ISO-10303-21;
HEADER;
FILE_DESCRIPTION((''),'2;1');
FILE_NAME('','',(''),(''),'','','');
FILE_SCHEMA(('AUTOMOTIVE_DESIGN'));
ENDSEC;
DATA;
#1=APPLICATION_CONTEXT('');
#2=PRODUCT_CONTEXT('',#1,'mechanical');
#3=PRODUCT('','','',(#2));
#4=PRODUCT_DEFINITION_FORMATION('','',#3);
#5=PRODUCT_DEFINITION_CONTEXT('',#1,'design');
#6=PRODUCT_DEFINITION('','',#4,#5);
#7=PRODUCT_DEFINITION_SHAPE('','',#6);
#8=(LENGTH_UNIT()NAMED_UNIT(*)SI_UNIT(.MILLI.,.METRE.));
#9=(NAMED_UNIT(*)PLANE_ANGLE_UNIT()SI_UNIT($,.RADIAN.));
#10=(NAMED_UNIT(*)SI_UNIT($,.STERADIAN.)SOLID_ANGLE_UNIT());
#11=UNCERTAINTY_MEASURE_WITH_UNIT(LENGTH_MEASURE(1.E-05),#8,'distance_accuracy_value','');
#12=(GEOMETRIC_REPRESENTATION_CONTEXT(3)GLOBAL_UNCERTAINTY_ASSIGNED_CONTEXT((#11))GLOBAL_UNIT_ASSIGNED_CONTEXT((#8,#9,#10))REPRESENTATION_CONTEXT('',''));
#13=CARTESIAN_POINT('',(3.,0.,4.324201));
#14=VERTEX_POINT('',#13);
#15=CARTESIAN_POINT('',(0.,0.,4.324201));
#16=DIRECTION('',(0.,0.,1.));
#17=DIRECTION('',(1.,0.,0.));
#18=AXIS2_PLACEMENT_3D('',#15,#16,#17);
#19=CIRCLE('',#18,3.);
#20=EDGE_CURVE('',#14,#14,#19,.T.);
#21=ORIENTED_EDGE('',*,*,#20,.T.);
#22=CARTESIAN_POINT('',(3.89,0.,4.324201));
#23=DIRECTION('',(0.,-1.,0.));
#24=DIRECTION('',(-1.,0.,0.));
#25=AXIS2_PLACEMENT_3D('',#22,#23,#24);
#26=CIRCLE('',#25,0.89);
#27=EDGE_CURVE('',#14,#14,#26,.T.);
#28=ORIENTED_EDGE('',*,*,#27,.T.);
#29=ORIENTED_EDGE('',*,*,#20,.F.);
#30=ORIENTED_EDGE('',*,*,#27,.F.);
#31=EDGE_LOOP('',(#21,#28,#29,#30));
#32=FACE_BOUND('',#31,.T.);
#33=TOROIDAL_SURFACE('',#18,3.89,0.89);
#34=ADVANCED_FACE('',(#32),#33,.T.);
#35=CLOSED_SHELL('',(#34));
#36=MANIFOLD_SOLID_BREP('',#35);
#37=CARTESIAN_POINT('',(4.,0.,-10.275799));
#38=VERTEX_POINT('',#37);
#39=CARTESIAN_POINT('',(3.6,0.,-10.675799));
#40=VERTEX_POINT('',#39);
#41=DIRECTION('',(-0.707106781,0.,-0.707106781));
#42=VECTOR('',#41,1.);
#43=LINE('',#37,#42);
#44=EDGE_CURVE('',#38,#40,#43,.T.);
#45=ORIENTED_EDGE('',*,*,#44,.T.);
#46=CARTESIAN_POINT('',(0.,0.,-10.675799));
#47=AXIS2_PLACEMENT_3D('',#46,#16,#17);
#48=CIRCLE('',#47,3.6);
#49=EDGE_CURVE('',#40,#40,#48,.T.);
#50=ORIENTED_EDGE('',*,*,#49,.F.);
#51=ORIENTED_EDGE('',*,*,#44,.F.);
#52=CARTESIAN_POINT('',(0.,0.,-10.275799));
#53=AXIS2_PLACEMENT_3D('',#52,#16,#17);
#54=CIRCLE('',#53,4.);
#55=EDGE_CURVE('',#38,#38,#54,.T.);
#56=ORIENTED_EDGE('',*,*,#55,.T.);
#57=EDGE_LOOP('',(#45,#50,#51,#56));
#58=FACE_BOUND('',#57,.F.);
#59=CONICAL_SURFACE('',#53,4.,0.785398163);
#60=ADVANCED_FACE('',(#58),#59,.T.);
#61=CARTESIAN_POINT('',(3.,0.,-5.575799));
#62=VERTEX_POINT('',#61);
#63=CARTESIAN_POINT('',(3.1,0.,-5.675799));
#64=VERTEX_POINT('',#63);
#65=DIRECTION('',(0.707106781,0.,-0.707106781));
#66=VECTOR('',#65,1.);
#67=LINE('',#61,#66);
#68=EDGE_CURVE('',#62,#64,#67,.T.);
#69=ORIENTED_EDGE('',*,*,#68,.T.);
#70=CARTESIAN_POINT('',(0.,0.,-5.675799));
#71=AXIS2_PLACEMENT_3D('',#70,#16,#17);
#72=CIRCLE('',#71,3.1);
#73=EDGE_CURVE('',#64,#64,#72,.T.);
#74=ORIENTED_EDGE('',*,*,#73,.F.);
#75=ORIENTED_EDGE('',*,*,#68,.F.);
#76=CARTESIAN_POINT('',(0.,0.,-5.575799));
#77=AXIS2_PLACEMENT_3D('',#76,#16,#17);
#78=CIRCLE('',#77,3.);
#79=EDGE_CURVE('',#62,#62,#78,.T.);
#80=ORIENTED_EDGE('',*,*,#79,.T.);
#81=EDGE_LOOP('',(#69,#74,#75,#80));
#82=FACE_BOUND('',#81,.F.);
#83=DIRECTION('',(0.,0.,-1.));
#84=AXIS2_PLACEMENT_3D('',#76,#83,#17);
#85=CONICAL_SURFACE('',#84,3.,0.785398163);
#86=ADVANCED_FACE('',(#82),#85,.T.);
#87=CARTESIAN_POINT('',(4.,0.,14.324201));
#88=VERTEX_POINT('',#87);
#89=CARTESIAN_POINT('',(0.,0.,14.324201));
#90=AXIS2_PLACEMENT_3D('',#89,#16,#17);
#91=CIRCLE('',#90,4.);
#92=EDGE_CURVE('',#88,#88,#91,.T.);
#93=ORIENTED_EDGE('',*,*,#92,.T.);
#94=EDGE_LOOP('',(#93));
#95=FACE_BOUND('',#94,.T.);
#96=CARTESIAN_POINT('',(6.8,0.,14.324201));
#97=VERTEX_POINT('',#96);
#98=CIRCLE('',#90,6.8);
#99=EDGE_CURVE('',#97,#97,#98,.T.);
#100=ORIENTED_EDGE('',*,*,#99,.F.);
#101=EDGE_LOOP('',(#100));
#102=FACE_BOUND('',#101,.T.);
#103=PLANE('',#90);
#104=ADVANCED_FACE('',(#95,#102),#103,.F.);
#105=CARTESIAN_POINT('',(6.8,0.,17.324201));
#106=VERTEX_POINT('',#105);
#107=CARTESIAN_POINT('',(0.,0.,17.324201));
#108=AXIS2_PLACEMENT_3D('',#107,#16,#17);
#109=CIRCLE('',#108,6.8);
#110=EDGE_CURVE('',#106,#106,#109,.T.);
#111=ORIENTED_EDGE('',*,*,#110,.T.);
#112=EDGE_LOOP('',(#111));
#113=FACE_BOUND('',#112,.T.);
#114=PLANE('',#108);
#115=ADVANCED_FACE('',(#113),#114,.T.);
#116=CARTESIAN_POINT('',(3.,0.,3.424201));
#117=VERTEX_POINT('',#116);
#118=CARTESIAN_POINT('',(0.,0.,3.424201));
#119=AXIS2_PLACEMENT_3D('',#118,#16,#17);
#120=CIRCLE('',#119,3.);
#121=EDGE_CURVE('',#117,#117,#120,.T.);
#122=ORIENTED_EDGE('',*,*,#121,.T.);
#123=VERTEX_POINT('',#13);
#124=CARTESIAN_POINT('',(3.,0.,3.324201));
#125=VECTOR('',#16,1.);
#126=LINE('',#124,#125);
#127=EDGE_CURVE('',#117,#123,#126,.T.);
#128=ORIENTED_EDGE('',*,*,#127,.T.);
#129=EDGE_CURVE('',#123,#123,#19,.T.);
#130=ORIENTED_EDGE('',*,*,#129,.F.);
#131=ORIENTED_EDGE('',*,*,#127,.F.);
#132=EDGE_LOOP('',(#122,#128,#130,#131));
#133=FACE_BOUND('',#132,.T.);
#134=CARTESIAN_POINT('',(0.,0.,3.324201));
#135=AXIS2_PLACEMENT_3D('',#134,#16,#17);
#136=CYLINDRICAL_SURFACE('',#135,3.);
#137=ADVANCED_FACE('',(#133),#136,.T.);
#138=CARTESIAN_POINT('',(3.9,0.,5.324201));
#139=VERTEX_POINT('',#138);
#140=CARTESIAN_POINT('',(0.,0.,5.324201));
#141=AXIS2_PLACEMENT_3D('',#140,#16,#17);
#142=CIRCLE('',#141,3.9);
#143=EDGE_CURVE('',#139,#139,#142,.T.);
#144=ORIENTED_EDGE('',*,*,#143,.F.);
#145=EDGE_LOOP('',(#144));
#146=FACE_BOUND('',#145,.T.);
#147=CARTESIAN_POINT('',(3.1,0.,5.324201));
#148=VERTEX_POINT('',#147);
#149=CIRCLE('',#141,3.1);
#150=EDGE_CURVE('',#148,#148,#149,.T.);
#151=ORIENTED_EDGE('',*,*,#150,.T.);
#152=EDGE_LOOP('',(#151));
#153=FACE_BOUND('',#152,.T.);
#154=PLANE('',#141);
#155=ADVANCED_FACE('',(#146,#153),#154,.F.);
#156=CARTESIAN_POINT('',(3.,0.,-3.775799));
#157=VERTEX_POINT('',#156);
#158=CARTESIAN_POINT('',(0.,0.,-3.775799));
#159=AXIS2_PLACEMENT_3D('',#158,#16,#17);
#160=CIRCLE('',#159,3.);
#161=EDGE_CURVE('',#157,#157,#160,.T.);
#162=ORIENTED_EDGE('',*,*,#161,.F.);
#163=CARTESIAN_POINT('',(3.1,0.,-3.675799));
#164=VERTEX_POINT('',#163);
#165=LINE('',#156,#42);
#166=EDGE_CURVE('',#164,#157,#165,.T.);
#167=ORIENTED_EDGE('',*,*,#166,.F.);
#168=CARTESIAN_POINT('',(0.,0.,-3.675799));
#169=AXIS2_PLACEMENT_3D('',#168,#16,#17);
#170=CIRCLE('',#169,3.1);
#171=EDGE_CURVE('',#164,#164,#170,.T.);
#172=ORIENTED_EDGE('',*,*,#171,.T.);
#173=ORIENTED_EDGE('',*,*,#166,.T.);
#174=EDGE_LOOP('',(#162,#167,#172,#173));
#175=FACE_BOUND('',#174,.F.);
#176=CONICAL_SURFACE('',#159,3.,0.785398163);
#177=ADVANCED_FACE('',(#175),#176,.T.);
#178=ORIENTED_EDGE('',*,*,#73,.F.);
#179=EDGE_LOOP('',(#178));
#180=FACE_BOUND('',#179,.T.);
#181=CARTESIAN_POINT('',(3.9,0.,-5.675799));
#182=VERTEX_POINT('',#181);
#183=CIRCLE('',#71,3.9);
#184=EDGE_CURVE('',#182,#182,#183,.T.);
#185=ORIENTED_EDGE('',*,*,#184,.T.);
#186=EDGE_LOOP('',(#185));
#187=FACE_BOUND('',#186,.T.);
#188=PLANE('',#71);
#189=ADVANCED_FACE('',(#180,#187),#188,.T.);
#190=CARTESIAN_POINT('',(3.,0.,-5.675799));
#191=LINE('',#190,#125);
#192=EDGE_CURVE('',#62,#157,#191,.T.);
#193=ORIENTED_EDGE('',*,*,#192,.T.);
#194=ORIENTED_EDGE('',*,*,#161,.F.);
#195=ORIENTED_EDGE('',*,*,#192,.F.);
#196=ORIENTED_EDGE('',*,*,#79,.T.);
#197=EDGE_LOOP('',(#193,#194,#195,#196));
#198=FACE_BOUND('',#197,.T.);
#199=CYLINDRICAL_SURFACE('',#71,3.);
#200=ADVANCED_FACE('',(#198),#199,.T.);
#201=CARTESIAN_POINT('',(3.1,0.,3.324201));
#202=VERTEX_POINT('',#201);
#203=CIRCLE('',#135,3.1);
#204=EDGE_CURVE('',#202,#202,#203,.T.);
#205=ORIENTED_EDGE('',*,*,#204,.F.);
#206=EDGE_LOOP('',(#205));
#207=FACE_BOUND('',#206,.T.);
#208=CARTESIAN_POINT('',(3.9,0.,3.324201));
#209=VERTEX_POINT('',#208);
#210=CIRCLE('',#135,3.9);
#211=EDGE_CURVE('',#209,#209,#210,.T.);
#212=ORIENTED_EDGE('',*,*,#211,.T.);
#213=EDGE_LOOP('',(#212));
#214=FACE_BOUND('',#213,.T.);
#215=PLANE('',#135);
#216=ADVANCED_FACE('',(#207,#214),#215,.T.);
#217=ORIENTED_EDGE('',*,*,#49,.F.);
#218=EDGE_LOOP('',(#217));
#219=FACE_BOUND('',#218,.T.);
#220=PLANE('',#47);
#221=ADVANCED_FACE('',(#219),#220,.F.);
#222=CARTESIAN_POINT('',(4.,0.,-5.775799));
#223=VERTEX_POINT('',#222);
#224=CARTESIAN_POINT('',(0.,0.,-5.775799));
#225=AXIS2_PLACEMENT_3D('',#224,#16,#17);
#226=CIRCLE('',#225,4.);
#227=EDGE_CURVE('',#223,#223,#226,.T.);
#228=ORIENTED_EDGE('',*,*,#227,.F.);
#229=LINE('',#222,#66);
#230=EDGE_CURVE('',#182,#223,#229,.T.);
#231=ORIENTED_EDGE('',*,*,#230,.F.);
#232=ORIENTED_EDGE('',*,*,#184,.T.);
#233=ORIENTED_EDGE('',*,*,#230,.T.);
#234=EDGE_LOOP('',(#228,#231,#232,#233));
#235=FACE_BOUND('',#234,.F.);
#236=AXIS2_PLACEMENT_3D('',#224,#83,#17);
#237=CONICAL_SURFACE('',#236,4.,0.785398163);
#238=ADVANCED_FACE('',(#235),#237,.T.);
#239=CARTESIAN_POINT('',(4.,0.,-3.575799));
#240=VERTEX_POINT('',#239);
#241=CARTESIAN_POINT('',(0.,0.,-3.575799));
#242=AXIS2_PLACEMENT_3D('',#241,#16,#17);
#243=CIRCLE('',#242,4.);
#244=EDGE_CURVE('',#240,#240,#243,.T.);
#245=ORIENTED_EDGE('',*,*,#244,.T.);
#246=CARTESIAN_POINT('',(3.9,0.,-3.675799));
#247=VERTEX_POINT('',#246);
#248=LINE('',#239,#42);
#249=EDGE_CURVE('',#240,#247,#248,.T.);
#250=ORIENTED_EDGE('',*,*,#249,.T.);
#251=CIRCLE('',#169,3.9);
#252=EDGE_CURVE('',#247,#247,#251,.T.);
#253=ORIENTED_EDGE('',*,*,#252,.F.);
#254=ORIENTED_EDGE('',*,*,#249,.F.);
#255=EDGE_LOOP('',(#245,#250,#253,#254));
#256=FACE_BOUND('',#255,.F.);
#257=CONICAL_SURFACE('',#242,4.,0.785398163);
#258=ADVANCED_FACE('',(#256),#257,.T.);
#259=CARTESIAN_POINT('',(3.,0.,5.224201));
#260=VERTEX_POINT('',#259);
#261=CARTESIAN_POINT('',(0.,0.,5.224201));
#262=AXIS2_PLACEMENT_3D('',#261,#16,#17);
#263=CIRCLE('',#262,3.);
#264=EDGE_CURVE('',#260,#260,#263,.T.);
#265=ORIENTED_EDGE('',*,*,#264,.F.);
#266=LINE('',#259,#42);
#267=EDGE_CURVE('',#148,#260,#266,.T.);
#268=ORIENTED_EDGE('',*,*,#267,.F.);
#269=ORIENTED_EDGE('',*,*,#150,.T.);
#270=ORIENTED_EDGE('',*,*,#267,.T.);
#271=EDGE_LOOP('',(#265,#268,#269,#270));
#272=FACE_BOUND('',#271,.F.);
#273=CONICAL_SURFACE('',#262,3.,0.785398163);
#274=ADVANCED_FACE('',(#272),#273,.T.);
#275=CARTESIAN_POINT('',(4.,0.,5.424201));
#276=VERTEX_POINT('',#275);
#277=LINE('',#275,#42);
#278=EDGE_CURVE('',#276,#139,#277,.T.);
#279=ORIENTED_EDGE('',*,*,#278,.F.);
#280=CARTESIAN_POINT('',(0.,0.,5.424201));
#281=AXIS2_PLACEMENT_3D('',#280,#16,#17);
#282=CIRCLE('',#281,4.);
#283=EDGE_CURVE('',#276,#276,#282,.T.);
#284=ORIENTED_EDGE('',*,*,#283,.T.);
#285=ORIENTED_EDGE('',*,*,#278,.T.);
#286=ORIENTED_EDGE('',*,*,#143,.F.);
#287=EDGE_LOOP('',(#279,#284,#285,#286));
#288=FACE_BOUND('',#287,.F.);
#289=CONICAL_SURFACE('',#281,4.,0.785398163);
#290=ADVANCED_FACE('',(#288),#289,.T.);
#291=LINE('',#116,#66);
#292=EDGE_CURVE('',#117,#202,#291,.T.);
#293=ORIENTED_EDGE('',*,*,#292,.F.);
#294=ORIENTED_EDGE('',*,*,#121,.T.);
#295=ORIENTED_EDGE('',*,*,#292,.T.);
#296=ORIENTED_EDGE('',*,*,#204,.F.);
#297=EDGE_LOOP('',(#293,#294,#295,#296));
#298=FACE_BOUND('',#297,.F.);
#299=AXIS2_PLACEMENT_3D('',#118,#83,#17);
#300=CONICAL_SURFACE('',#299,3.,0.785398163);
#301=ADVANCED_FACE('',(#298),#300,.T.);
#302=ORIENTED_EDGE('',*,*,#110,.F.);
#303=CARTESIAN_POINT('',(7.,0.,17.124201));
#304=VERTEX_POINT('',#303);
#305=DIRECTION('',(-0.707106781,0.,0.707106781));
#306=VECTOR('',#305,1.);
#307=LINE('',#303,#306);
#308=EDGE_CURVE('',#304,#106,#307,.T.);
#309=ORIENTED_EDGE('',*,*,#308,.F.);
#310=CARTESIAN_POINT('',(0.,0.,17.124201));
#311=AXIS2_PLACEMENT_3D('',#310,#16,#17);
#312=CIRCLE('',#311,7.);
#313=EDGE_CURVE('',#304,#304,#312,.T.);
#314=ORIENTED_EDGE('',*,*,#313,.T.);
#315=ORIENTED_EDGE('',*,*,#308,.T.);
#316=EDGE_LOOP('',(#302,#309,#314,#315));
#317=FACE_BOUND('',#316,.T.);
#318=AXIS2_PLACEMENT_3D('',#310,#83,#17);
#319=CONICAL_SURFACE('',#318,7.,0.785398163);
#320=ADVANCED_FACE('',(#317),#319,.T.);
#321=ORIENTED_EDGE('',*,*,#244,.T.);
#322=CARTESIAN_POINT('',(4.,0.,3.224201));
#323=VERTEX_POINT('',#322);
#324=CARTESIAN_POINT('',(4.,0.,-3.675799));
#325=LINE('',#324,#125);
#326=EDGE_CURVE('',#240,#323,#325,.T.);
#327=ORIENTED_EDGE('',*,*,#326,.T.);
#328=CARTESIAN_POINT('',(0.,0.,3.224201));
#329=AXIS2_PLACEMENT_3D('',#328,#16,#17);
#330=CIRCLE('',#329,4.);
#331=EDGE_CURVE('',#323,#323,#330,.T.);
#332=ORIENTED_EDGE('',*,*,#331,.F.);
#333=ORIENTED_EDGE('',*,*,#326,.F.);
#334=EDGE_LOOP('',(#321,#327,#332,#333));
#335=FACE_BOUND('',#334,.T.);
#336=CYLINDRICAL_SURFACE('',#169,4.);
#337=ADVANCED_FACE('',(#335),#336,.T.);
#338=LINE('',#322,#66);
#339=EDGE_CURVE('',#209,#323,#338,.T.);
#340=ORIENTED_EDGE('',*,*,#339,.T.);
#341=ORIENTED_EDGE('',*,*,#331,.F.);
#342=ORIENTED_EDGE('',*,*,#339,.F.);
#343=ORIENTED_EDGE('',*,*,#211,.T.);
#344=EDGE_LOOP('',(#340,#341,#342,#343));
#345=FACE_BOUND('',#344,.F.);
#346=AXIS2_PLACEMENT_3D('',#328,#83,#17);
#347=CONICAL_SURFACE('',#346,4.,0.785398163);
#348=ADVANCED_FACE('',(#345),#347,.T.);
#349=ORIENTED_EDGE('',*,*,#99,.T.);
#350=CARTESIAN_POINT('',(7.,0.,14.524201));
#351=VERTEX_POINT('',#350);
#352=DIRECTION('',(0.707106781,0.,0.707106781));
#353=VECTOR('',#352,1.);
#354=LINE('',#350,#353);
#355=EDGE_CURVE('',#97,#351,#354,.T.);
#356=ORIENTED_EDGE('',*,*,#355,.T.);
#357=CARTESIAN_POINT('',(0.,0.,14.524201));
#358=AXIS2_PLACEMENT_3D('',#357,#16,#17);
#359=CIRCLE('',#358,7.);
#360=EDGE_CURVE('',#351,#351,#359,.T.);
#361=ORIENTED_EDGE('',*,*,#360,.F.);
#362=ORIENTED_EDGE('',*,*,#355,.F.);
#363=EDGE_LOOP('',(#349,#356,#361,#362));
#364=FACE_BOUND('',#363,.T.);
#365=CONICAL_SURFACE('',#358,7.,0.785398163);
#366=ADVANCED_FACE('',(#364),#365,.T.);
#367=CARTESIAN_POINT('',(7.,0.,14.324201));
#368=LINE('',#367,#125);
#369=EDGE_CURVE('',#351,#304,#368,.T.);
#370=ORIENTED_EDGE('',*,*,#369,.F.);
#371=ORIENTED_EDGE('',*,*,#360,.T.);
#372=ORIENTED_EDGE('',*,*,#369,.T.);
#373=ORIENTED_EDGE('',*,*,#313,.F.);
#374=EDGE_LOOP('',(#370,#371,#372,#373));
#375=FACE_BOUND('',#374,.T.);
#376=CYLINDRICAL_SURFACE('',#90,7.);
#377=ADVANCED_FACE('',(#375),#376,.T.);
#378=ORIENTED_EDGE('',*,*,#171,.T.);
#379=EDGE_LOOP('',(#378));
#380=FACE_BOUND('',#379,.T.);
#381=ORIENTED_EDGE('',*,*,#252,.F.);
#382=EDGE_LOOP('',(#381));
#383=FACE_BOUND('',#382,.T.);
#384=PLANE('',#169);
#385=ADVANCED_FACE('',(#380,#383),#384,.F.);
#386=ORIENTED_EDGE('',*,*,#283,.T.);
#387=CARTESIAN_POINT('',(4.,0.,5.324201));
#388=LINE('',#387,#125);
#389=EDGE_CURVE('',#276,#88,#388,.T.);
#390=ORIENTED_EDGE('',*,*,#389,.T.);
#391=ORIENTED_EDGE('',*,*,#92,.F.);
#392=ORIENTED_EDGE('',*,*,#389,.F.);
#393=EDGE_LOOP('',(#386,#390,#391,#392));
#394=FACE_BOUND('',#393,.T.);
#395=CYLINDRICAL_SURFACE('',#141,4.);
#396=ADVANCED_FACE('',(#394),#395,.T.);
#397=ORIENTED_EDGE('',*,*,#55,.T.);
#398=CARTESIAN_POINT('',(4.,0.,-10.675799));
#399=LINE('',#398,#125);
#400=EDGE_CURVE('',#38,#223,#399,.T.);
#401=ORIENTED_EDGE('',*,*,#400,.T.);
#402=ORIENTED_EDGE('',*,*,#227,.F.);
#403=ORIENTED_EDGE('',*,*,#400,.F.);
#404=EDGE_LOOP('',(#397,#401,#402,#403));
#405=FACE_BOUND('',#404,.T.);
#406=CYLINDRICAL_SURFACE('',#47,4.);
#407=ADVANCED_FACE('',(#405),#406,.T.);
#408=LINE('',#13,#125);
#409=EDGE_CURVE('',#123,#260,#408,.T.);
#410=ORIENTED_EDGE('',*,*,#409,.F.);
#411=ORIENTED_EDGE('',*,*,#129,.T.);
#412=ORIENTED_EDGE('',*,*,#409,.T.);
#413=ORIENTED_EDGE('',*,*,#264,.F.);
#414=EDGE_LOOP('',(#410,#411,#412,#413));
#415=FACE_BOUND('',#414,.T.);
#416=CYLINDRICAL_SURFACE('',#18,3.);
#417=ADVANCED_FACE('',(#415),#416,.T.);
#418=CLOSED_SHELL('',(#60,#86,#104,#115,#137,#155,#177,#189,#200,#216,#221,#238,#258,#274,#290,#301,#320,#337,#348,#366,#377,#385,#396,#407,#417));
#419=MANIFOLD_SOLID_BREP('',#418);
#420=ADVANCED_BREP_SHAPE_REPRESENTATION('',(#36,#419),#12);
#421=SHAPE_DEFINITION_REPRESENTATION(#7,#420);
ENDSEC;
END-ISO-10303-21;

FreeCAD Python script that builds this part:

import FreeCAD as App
import Part
import Sketcher
from FreeCAD import Vector


def edges_at(feature, points):
    """Names of the edges that pass closest to the given points."""
    edges = feature.Shape.Edges
    near = lambda p: min(range(len(edges)), key=lambda i: edges[i].distToShape(Part.Vertex(*p))[0])
    return sorted({f"Edge{near(p) + 1}" for p in points})


def add_polygon(sketch, points):
    """Adds a closed chain of lines whose ends are joined by coincident constraints."""
    first, n = sketch.GeometryCount, len(points)
    for a, b in zip(points, points[1:] + points[:1]):
        sketch.addGeometry(Part.LineSegment(App.Vector(*a, 0), App.Vector(*b, 0)), False)
    for i in range(n):
        sketch.addConstraint(Sketcher.Constraint("Coincident", first + i, 2, first + (i + 1) % n, 1))

doc = App.newDocument("Part")
params = doc.addObject("Spreadsheet::Sheet", "Params")
for row, (alias, value) in enumerate([
    ("sketch1_diameter", "1.78 mm"),
    ("sketch1_width", "7 mm"),
    ("sketch1_width2", "4 mm"),
    ("sketch1_width3", "1 mm"),
    ("sketch1_height", "28 mm"),
    ("revolution_angle", "360 deg"),
    ("chamfer_size", "0.1 mm"),
    ("chamfer2_size", "0.1 mm"),
    ("chamfer3_size", "0.2 mm"),
    ("chamfer4_size", "0.4 mm"),
], start=1):
    params.set(f"A{row}", alias)
    params.set(f"B{row}", "=" + value)
    params.setAlias(f"B{row}", alias)

body = doc.addObject("PartDesign::Body", "Body")
body.AllowCompound = True

# Sketch on XZ plane
sketch1 = doc.addObject("Sketcher::SketchObject", "Sketch")
body.addObject(sketch1)
sketch1.AttachmentSupport = (doc.XZ_Plane, [""])
sketch1.MapMode = "FlatFace"
sketch1.addGeometry(Part.Circle(Vector(3.89, 4.324201, 0), Vector(0, 0, 1), 0.89), False)  # 0
add_polygon(sketch1, [(7, 17.324201), (0, 17.324201), (0, -10.675799), (4, -10.675799), (4, -5.675799), (3, -5.675799), (3, -3.675799), (4, -3.675799), (4, 3.324201), (3, 3.324201), (3, 4.324201), (3, 5.324201), (4, 5.324201), (4, 14.324201), (7, 14.324201)])  # lines 1-15
sketch1.addConstraint(Sketcher.Constraint("Horizontal", 1))
sketch1.addConstraint(Sketcher.Constraint("Vertical", 2))
sketch1.addConstraint(Sketcher.Constraint("Horizontal", 3))
sketch1.addConstraint(Sketcher.Constraint("Vertical", 4))
sketch1.addConstraint(Sketcher.Constraint("Horizontal", 5))
sketch1.addConstraint(Sketcher.Constraint("Vertical", 6))
sketch1.addConstraint(Sketcher.Constraint("Horizontal", 7))
sketch1.addConstraint(Sketcher.Constraint("Vertical", 8))
sketch1.addConstraint(Sketcher.Constraint("Horizontal", 9))
sketch1.addConstraint(Sketcher.Constraint("Vertical", 10))
sketch1.addConstraint(Sketcher.Constraint("Vertical", 11))
sketch1.addConstraint(Sketcher.Constraint("Horizontal", 12))
sketch1.addConstraint(Sketcher.Constraint("Vertical", 13))
sketch1.addConstraint(Sketcher.Constraint("Horizontal", 14))
sketch1.addConstraint(Sketcher.Constraint("Vertical", 15))
sketch1.addConstraint(Sketcher.Constraint("PointOnObject", 1, 2, -2))
sketch1.addConstraint(Sketcher.Constraint("Horizontal", 0, 3, 10, 2))
sketch1.addConstraint(Sketcher.Constraint("Vertical", 4, 2, 7, 2))
sketch1.addConstraint(Sketcher.Constraint("Vertical", 6, 2, 9, 2))
sketch1.addConstraint(Sketcher.Constraint("Vertical", 8, 2, 12, 2))
sketch1.addConstraint(Sketcher.Constraint("Equal", 1, 8))
sketch1.addConstraint(Sketcher.Constraint("Equal", 12, 10))
sketch1.addConstraint(Sketcher.Constraint("Equal", 10, 11))
sketch1.addConstraint(Sketcher.Constraint("Equal", 14, 15))
sketch1.addConstraint(Sketcher.Constraint("Diameter", 0, 1.78))
sketch1.addConstraint(Sketcher.Constraint("DistanceX", 1, 2, 1, 1, 7.0))
sketch1.addConstraint(Sketcher.Constraint("DistanceX", 3, 1, 3, 2, 4.0))
sketch1.addConstraint(Sketcher.Constraint("DistanceX", 5, 2, 5, 1, 1.0))
sketch1.addConstraint(Sketcher.Constraint("DistanceY", 2, 2, 2, 1, 28.0))
sketch1.addConstraint(Sketcher.Constraint("DistanceY", 4, 1, 4, 2, 5.0))
sketch1.addConstraint(Sketcher.Constraint("DistanceY", 6, 1, 6, 2, 2.0))
sketch1.addConstraint(Sketcher.Constraint("DistanceX", -1, 1, 0, 3, 3.89))
sketch1.addConstraint(Sketcher.Constraint("DistanceY", -1, 1, 0, 3, 4.324201))
sketch1.setExpression("Constraints[39]", "Params.sketch1_diameter")
sketch1.setExpression("Constraints[40]", "Params.sketch1_width")
sketch1.setExpression("Constraints[41]", "Params.sketch1_width2")
sketch1.setExpression("Constraints[42]", "Params.sketch1_width3")
sketch1.setExpression("Constraints[43]", "Params.sketch1_height")
revolution = doc.addObject("PartDesign::Revolution", "Revolution")
body.addObject(revolution)
revolution.Profile = sketch1
revolution.ReferenceAxis = (sketch1, ["V_Axis"])
revolution.setExpression("Angle", "Params.revolution_angle")
doc.recompute()

chamfer = doc.addObject("PartDesign::Chamfer", "Chamfer")
body.addObject(chamfer)
chamfer.Base = (revolution, edges_at(revolution, [(-3, 0, 5.324), (-4, 0, 5.324)]))
chamfer.setExpression("Size", "Params.chamfer_size")
doc.recompute()

chamfer2 = doc.addObject("PartDesign::Chamfer", "Chamfer001")
body.addObject(chamfer2)
chamfer2.Base = (chamfer, edges_at(chamfer, [
    (-4, 0, 3.324),
    (-4, 0, -3.676),
    (-4, 0, -5.676),
    (-3, 0, 3.324),
    (-3, 0, -5.676),
    (-3, 0, -3.676),
]))
chamfer2.setExpression("Size", "Params.chamfer2_size")
doc.recompute()

chamfer3 = doc.addObject("PartDesign::Chamfer", "Chamfer002")
body.addObject(chamfer3)
chamfer3.Base = (chamfer2, edges_at(chamfer2, [(-7, 0, 17.324), (-7, 0, 14.324)]))
chamfer3.setExpression("Size", "Params.chamfer3_size")
doc.recompute()

chamfer4 = doc.addObject("PartDesign::Chamfer", "Chamfer003")
body.addObject(chamfer4)
chamfer4.Base = (chamfer3, edges_at(chamfer3, [(-4, 0, -10.676)]))
chamfer4.setExpression("Size", "Params.chamfer4_size")

doc.recompute()
